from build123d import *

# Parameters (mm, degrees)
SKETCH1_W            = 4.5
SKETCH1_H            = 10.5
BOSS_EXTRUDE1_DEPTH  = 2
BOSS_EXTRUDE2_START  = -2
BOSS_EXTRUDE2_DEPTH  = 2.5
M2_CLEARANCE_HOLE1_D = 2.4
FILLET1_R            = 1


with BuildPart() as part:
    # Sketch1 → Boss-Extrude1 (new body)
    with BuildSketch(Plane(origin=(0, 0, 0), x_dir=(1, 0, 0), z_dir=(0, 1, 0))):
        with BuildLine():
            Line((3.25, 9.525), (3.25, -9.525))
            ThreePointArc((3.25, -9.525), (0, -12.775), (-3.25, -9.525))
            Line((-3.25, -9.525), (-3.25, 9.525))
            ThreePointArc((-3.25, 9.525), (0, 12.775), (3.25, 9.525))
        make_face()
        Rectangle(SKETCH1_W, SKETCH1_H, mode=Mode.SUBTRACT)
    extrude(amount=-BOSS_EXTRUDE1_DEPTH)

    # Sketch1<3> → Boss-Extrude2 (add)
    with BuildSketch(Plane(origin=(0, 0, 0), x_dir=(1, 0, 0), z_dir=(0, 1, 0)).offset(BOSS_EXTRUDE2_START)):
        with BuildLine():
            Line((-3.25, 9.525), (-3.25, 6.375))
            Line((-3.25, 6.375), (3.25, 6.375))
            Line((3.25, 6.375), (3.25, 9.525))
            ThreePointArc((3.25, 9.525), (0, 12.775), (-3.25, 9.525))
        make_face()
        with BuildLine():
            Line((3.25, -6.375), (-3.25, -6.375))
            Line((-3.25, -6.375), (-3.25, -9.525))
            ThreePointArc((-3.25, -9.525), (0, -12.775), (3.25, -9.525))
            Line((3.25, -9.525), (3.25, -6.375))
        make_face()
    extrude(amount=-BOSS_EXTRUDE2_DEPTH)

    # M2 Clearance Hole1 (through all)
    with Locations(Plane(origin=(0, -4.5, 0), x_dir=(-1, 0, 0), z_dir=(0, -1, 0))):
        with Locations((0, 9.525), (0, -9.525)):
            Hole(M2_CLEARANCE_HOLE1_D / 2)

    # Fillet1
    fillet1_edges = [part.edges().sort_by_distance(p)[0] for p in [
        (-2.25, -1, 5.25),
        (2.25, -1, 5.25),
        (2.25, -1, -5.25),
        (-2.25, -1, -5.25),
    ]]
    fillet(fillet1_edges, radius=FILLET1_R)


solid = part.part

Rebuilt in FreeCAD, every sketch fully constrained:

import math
import FreeCAD as App
import Part
import Sketcher

V = App.Vector


def edges_at(feature, points):
    """Names of the edges that pass closest to the given points."""
    edges = feature.Shape.Edges
    near = lambda p: min(range(len(edges)), key=lambda i: edges[i].distToShape(Part.Vertex(*p))[0])
    return sorted({f"Edge{near(p) + 1}" for p in points})


def add_polygon(sketch, points):
    """Adds a closed chain of lines whose ends are joined by coincident constraints."""
    first, n = sketch.GeometryCount, len(points)
    for a, b in zip(points, points[1:] + points[:1]):
        sketch.addGeometry(Part.LineSegment(App.Vector(*a, 0), App.Vector(*b, 0)), False)
    for i in range(n):
        sketch.addConstraint(Sketcher.Constraint("Coincident", first + i, 2, first + (i + 1) % n, 1))

doc = App.newDocument("Part")
body = doc.addObject("PartDesign::Body", "Body")

sketch1 = doc.addObject("Sketcher::SketchObject", "Sketch")
body.addObject(sketch1)
sketch1.AttachmentSupport = (doc.XZ_Plane, [""])
sketch1.MapMode = "FlatFace"
sketch1.addGeometry(Part.LineSegment(V(3.2, 9.5, 0), V(3.2, -9.5, 0)), False)
sketch1.addGeometry(Part.ArcOfCircle(Part.Circle(V(0, -9.5, 0), V(0, 0, 1), 3.2), math.radians(180), math.radians(360)), False)
sketch1.addGeometry(Part.LineSegment(V(-3.2, -9.5, 0), V(-3.2, 9.5, 0)), False)
sketch1.addGeometry(Part.ArcOfCircle(Part.Circle(V(0, 9.5, 0), V(0, 0, 1), 3.2), math.radians(0), math.radians(180)), False)
add_polygon(sketch1, [(-2.2, 5.2), (-2.2, -5.2), (2.2, -5.2), (2.2, 5.2)])
sketch1.addConstraint(Sketcher.Constraint("Tangent", 0, 2, 1, 2))
sketch1.addConstraint(Sketcher.Constraint("Tangent", 1, 1, 2, 1))
sketch1.addConstraint(Sketcher.Constraint("Tangent", 2, 2, 3, 2))
sketch1.addConstraint(Sketcher.Constraint("Tangent", 3, 1, 0, 1))
sketch1.addConstraint(Sketcher.Constraint("Vertical", 0))
sketch1.addConstraint(Sketcher.Constraint("Vertical", 2))
sketch1.addConstraint(Sketcher.Constraint("Vertical", 4))
sketch1.addConstraint(Sketcher.Constraint("Horizontal", 5))
sketch1.addConstraint(Sketcher.Constraint("Vertical", 6))
sketch1.addConstraint(Sketcher.Constraint("Horizontal", 7))
sketch1.addConstraint(Sketcher.Constraint("Symmetric", 1, 3, 3, 3, -1, 1))
sketch1.addConstraint(Sketcher.Constraint("Symmetric", 4, 2, 6, 2, -1, 1))
sketch1.addConstraint(Sketcher.Constraint("Radius", 1, 3.25))
sketch1.addConstraint(Sketcher.Constraint("DistanceX", 5, 1, 5, 2, 4.5))
sketch1.addConstraint(Sketcher.Constraint("DistanceY", 4, 2, 4, 1, 10.5))
sketch1.addConstraint(Sketcher.Constraint("DistanceY", 0, 2, 0, 1, 19.05))
pad1 = doc.addObject("PartDesign::Pad", "Pad")
body.addObject(pad1)
pad1.Profile = sketch1
pad1.Length = 2

sketch2 = doc.addObject("Sketcher::SketchObject", "Sketch001")
body.addObject(sketch2)
sketch2.AttachmentSupport = (doc.XZ_Plane, [""])
sketch2.MapMode = "FlatFace"
sketch2.AttachmentOffset = App.Placement(V(0, 0, 2), App.Rotation())
sketch2.addGeometry(Part.LineSegment(V(-3.2, -9.5, 0), V(-3.2, -6.4, 0)), False)
sketch2.addGeometry(Part.LineSegment(V(-3.2, -6.4, 0), V(3.2, -6.4, 0)), False)
sketch2.addGeometry(Part.LineSegment(V(3.2, -6.4, 0), V(3.2, -9.5, 0)), False)
sketch2.addGeometry(Part.ArcOfCircle(Part.Circle(V(0, -9.5, 0), V(0, 0, 1), 3.2), math.radians(180), math.radians(360)), False)
sketch2.addGeometry(Part.LineSegment(V(3.2, 6.4, 0), V(-3.2, 6.4, 0)), False)
sketch2.addGeometry(Part.LineSegment(V(-3.2, 6.4, 0), V(-3.2, 9.5, 0)), False)
sketch2.addGeometry(Part.ArcOfCircle(Part.Circle(V(0, 9.5, 0), V(0, 0, 1), 3.2), math.radians(0), math.radians(180)), False)
sketch2.addGeometry(Part.LineSegment(V(3.2, 9.5, 0), V(3.2, 6.4, 0)), False)
sketch2.addConstraint(Sketcher.Constraint("Coincident", 0, 2, 1, 1))
sketch2.addConstraint(Sketcher.Constraint("Coincident", 1, 2, 2, 1))
sketch2.addConstraint(Sketcher.Constraint("Tangent", 2, 2, 3, 2))
sketch2.addConstraint(Sketcher.Constraint("Tangent", 3, 1, 0, 1))
sketch2.addConstraint(Sketcher.Constraint("Coincident", 4, 2, 5, 1))
sketch2.addConstraint(Sketcher.Constraint("Tangent", 5, 2, 6, 2))
sketch2.addConstraint(Sketcher.Constraint("Tangent", 6, 1, 7, 1))
sketch2.addConstraint(Sketcher.Constraint("Coincident", 7, 2, 4, 1))
sketch2.addConstraint(Sketcher.Constraint("Vertical", 0))
sketch2.addConstraint(Sketcher.Constraint("Horizontal", 1))
sketch2.addConstraint(Sketcher.Constraint("Vertical", 2))
sketch2.addConstraint(Sketcher.Constraint("Horizontal", 4))
sketch2.addConstraint(Sketcher.Constraint("Vertical", 5))
sketch2.addConstraint(Sketcher.Constraint("Vertical", 7))
sketch2.addConstraint(Sketcher.Constraint("Equal", 3, 6))
sketch2.addConstraint(Sketcher.Constraint("Symmetric", 3, 3, 6, 3, -1, 1))
sketch2.addConstraint(Sketcher.Constraint("Symmetric", 0, 2, 4, 2, -1))
sketch2.addConstraint(Sketcher.Constraint("Radius", 3, 3.25))
sketch2.addConstraint(Sketcher.Constraint("DistanceY", 0, 1, 0, 2, 3.15))
sketch2.addConstraint(Sketcher.Constraint("DistanceY", 0, 2, 6, 3, 15.9))
pad2 = doc.addObject("PartDesign::Pad", "Pad001")
body.addObject(pad2)
pad2.Profile = sketch2
pad2.Length = 2.5

sketch3 = doc.addObject("Sketcher::SketchObject", "Sketch002")
body.addObject(sketch3)
sketch3.AttachmentSupport = (doc.XZ_Plane, [""])
sketch3.MapMode = "FlatFace"
sketch3.AttachmentOffset = App.Placement(V(0, 0, 4.5), App.Rotation())
sketch3.addGeometry(Part.Circle(V(0, -9.5, 0), V(0, 0, 1), 1.2), False)
sketch3.addGeometry(Part.Circle(V(0, 9.5, 0), V(0, 0, 1), 1.2), False)
sketch3.addConstraint(Sketcher.Constraint("Equal", 0, 1))
sketch3.addConstraint(Sketcher.Constraint("Symmetric", 0, 3, 1, 3, -1, 1))
sketch3.addConstraint(Sketcher.Constraint("PointOnObject", 0, 3, -2))
sketch3.addConstraint(Sketcher.Constraint("Diameter", 0, 2.4))
sketch3.addConstraint(Sketcher.Constraint("DistanceY", 0, 3, 1, 3, 19.05))
doc.recompute()
hole = doc.addObject("PartDesign::Hole", "Hole")
body.addObject(hole)
hole.Profile = sketch3
hole.ThreadType = "None"
hole.Diameter = 2.4
hole.DepthType = "ThroughAll"
doc.recompute()

fillet = doc.addObject("PartDesign::Fillet", "Fillet")
body.addObject(fillet)
fillet.Base = (hole, edges_at(hole, [
    (-2.25, -1, 5.25),
    (2.25, -1, 5.25),
    (2.25, -1, -5.25),
    (-2.25, -1, -5.25),
]))
fillet.Radius = 1

doc.recompute()
